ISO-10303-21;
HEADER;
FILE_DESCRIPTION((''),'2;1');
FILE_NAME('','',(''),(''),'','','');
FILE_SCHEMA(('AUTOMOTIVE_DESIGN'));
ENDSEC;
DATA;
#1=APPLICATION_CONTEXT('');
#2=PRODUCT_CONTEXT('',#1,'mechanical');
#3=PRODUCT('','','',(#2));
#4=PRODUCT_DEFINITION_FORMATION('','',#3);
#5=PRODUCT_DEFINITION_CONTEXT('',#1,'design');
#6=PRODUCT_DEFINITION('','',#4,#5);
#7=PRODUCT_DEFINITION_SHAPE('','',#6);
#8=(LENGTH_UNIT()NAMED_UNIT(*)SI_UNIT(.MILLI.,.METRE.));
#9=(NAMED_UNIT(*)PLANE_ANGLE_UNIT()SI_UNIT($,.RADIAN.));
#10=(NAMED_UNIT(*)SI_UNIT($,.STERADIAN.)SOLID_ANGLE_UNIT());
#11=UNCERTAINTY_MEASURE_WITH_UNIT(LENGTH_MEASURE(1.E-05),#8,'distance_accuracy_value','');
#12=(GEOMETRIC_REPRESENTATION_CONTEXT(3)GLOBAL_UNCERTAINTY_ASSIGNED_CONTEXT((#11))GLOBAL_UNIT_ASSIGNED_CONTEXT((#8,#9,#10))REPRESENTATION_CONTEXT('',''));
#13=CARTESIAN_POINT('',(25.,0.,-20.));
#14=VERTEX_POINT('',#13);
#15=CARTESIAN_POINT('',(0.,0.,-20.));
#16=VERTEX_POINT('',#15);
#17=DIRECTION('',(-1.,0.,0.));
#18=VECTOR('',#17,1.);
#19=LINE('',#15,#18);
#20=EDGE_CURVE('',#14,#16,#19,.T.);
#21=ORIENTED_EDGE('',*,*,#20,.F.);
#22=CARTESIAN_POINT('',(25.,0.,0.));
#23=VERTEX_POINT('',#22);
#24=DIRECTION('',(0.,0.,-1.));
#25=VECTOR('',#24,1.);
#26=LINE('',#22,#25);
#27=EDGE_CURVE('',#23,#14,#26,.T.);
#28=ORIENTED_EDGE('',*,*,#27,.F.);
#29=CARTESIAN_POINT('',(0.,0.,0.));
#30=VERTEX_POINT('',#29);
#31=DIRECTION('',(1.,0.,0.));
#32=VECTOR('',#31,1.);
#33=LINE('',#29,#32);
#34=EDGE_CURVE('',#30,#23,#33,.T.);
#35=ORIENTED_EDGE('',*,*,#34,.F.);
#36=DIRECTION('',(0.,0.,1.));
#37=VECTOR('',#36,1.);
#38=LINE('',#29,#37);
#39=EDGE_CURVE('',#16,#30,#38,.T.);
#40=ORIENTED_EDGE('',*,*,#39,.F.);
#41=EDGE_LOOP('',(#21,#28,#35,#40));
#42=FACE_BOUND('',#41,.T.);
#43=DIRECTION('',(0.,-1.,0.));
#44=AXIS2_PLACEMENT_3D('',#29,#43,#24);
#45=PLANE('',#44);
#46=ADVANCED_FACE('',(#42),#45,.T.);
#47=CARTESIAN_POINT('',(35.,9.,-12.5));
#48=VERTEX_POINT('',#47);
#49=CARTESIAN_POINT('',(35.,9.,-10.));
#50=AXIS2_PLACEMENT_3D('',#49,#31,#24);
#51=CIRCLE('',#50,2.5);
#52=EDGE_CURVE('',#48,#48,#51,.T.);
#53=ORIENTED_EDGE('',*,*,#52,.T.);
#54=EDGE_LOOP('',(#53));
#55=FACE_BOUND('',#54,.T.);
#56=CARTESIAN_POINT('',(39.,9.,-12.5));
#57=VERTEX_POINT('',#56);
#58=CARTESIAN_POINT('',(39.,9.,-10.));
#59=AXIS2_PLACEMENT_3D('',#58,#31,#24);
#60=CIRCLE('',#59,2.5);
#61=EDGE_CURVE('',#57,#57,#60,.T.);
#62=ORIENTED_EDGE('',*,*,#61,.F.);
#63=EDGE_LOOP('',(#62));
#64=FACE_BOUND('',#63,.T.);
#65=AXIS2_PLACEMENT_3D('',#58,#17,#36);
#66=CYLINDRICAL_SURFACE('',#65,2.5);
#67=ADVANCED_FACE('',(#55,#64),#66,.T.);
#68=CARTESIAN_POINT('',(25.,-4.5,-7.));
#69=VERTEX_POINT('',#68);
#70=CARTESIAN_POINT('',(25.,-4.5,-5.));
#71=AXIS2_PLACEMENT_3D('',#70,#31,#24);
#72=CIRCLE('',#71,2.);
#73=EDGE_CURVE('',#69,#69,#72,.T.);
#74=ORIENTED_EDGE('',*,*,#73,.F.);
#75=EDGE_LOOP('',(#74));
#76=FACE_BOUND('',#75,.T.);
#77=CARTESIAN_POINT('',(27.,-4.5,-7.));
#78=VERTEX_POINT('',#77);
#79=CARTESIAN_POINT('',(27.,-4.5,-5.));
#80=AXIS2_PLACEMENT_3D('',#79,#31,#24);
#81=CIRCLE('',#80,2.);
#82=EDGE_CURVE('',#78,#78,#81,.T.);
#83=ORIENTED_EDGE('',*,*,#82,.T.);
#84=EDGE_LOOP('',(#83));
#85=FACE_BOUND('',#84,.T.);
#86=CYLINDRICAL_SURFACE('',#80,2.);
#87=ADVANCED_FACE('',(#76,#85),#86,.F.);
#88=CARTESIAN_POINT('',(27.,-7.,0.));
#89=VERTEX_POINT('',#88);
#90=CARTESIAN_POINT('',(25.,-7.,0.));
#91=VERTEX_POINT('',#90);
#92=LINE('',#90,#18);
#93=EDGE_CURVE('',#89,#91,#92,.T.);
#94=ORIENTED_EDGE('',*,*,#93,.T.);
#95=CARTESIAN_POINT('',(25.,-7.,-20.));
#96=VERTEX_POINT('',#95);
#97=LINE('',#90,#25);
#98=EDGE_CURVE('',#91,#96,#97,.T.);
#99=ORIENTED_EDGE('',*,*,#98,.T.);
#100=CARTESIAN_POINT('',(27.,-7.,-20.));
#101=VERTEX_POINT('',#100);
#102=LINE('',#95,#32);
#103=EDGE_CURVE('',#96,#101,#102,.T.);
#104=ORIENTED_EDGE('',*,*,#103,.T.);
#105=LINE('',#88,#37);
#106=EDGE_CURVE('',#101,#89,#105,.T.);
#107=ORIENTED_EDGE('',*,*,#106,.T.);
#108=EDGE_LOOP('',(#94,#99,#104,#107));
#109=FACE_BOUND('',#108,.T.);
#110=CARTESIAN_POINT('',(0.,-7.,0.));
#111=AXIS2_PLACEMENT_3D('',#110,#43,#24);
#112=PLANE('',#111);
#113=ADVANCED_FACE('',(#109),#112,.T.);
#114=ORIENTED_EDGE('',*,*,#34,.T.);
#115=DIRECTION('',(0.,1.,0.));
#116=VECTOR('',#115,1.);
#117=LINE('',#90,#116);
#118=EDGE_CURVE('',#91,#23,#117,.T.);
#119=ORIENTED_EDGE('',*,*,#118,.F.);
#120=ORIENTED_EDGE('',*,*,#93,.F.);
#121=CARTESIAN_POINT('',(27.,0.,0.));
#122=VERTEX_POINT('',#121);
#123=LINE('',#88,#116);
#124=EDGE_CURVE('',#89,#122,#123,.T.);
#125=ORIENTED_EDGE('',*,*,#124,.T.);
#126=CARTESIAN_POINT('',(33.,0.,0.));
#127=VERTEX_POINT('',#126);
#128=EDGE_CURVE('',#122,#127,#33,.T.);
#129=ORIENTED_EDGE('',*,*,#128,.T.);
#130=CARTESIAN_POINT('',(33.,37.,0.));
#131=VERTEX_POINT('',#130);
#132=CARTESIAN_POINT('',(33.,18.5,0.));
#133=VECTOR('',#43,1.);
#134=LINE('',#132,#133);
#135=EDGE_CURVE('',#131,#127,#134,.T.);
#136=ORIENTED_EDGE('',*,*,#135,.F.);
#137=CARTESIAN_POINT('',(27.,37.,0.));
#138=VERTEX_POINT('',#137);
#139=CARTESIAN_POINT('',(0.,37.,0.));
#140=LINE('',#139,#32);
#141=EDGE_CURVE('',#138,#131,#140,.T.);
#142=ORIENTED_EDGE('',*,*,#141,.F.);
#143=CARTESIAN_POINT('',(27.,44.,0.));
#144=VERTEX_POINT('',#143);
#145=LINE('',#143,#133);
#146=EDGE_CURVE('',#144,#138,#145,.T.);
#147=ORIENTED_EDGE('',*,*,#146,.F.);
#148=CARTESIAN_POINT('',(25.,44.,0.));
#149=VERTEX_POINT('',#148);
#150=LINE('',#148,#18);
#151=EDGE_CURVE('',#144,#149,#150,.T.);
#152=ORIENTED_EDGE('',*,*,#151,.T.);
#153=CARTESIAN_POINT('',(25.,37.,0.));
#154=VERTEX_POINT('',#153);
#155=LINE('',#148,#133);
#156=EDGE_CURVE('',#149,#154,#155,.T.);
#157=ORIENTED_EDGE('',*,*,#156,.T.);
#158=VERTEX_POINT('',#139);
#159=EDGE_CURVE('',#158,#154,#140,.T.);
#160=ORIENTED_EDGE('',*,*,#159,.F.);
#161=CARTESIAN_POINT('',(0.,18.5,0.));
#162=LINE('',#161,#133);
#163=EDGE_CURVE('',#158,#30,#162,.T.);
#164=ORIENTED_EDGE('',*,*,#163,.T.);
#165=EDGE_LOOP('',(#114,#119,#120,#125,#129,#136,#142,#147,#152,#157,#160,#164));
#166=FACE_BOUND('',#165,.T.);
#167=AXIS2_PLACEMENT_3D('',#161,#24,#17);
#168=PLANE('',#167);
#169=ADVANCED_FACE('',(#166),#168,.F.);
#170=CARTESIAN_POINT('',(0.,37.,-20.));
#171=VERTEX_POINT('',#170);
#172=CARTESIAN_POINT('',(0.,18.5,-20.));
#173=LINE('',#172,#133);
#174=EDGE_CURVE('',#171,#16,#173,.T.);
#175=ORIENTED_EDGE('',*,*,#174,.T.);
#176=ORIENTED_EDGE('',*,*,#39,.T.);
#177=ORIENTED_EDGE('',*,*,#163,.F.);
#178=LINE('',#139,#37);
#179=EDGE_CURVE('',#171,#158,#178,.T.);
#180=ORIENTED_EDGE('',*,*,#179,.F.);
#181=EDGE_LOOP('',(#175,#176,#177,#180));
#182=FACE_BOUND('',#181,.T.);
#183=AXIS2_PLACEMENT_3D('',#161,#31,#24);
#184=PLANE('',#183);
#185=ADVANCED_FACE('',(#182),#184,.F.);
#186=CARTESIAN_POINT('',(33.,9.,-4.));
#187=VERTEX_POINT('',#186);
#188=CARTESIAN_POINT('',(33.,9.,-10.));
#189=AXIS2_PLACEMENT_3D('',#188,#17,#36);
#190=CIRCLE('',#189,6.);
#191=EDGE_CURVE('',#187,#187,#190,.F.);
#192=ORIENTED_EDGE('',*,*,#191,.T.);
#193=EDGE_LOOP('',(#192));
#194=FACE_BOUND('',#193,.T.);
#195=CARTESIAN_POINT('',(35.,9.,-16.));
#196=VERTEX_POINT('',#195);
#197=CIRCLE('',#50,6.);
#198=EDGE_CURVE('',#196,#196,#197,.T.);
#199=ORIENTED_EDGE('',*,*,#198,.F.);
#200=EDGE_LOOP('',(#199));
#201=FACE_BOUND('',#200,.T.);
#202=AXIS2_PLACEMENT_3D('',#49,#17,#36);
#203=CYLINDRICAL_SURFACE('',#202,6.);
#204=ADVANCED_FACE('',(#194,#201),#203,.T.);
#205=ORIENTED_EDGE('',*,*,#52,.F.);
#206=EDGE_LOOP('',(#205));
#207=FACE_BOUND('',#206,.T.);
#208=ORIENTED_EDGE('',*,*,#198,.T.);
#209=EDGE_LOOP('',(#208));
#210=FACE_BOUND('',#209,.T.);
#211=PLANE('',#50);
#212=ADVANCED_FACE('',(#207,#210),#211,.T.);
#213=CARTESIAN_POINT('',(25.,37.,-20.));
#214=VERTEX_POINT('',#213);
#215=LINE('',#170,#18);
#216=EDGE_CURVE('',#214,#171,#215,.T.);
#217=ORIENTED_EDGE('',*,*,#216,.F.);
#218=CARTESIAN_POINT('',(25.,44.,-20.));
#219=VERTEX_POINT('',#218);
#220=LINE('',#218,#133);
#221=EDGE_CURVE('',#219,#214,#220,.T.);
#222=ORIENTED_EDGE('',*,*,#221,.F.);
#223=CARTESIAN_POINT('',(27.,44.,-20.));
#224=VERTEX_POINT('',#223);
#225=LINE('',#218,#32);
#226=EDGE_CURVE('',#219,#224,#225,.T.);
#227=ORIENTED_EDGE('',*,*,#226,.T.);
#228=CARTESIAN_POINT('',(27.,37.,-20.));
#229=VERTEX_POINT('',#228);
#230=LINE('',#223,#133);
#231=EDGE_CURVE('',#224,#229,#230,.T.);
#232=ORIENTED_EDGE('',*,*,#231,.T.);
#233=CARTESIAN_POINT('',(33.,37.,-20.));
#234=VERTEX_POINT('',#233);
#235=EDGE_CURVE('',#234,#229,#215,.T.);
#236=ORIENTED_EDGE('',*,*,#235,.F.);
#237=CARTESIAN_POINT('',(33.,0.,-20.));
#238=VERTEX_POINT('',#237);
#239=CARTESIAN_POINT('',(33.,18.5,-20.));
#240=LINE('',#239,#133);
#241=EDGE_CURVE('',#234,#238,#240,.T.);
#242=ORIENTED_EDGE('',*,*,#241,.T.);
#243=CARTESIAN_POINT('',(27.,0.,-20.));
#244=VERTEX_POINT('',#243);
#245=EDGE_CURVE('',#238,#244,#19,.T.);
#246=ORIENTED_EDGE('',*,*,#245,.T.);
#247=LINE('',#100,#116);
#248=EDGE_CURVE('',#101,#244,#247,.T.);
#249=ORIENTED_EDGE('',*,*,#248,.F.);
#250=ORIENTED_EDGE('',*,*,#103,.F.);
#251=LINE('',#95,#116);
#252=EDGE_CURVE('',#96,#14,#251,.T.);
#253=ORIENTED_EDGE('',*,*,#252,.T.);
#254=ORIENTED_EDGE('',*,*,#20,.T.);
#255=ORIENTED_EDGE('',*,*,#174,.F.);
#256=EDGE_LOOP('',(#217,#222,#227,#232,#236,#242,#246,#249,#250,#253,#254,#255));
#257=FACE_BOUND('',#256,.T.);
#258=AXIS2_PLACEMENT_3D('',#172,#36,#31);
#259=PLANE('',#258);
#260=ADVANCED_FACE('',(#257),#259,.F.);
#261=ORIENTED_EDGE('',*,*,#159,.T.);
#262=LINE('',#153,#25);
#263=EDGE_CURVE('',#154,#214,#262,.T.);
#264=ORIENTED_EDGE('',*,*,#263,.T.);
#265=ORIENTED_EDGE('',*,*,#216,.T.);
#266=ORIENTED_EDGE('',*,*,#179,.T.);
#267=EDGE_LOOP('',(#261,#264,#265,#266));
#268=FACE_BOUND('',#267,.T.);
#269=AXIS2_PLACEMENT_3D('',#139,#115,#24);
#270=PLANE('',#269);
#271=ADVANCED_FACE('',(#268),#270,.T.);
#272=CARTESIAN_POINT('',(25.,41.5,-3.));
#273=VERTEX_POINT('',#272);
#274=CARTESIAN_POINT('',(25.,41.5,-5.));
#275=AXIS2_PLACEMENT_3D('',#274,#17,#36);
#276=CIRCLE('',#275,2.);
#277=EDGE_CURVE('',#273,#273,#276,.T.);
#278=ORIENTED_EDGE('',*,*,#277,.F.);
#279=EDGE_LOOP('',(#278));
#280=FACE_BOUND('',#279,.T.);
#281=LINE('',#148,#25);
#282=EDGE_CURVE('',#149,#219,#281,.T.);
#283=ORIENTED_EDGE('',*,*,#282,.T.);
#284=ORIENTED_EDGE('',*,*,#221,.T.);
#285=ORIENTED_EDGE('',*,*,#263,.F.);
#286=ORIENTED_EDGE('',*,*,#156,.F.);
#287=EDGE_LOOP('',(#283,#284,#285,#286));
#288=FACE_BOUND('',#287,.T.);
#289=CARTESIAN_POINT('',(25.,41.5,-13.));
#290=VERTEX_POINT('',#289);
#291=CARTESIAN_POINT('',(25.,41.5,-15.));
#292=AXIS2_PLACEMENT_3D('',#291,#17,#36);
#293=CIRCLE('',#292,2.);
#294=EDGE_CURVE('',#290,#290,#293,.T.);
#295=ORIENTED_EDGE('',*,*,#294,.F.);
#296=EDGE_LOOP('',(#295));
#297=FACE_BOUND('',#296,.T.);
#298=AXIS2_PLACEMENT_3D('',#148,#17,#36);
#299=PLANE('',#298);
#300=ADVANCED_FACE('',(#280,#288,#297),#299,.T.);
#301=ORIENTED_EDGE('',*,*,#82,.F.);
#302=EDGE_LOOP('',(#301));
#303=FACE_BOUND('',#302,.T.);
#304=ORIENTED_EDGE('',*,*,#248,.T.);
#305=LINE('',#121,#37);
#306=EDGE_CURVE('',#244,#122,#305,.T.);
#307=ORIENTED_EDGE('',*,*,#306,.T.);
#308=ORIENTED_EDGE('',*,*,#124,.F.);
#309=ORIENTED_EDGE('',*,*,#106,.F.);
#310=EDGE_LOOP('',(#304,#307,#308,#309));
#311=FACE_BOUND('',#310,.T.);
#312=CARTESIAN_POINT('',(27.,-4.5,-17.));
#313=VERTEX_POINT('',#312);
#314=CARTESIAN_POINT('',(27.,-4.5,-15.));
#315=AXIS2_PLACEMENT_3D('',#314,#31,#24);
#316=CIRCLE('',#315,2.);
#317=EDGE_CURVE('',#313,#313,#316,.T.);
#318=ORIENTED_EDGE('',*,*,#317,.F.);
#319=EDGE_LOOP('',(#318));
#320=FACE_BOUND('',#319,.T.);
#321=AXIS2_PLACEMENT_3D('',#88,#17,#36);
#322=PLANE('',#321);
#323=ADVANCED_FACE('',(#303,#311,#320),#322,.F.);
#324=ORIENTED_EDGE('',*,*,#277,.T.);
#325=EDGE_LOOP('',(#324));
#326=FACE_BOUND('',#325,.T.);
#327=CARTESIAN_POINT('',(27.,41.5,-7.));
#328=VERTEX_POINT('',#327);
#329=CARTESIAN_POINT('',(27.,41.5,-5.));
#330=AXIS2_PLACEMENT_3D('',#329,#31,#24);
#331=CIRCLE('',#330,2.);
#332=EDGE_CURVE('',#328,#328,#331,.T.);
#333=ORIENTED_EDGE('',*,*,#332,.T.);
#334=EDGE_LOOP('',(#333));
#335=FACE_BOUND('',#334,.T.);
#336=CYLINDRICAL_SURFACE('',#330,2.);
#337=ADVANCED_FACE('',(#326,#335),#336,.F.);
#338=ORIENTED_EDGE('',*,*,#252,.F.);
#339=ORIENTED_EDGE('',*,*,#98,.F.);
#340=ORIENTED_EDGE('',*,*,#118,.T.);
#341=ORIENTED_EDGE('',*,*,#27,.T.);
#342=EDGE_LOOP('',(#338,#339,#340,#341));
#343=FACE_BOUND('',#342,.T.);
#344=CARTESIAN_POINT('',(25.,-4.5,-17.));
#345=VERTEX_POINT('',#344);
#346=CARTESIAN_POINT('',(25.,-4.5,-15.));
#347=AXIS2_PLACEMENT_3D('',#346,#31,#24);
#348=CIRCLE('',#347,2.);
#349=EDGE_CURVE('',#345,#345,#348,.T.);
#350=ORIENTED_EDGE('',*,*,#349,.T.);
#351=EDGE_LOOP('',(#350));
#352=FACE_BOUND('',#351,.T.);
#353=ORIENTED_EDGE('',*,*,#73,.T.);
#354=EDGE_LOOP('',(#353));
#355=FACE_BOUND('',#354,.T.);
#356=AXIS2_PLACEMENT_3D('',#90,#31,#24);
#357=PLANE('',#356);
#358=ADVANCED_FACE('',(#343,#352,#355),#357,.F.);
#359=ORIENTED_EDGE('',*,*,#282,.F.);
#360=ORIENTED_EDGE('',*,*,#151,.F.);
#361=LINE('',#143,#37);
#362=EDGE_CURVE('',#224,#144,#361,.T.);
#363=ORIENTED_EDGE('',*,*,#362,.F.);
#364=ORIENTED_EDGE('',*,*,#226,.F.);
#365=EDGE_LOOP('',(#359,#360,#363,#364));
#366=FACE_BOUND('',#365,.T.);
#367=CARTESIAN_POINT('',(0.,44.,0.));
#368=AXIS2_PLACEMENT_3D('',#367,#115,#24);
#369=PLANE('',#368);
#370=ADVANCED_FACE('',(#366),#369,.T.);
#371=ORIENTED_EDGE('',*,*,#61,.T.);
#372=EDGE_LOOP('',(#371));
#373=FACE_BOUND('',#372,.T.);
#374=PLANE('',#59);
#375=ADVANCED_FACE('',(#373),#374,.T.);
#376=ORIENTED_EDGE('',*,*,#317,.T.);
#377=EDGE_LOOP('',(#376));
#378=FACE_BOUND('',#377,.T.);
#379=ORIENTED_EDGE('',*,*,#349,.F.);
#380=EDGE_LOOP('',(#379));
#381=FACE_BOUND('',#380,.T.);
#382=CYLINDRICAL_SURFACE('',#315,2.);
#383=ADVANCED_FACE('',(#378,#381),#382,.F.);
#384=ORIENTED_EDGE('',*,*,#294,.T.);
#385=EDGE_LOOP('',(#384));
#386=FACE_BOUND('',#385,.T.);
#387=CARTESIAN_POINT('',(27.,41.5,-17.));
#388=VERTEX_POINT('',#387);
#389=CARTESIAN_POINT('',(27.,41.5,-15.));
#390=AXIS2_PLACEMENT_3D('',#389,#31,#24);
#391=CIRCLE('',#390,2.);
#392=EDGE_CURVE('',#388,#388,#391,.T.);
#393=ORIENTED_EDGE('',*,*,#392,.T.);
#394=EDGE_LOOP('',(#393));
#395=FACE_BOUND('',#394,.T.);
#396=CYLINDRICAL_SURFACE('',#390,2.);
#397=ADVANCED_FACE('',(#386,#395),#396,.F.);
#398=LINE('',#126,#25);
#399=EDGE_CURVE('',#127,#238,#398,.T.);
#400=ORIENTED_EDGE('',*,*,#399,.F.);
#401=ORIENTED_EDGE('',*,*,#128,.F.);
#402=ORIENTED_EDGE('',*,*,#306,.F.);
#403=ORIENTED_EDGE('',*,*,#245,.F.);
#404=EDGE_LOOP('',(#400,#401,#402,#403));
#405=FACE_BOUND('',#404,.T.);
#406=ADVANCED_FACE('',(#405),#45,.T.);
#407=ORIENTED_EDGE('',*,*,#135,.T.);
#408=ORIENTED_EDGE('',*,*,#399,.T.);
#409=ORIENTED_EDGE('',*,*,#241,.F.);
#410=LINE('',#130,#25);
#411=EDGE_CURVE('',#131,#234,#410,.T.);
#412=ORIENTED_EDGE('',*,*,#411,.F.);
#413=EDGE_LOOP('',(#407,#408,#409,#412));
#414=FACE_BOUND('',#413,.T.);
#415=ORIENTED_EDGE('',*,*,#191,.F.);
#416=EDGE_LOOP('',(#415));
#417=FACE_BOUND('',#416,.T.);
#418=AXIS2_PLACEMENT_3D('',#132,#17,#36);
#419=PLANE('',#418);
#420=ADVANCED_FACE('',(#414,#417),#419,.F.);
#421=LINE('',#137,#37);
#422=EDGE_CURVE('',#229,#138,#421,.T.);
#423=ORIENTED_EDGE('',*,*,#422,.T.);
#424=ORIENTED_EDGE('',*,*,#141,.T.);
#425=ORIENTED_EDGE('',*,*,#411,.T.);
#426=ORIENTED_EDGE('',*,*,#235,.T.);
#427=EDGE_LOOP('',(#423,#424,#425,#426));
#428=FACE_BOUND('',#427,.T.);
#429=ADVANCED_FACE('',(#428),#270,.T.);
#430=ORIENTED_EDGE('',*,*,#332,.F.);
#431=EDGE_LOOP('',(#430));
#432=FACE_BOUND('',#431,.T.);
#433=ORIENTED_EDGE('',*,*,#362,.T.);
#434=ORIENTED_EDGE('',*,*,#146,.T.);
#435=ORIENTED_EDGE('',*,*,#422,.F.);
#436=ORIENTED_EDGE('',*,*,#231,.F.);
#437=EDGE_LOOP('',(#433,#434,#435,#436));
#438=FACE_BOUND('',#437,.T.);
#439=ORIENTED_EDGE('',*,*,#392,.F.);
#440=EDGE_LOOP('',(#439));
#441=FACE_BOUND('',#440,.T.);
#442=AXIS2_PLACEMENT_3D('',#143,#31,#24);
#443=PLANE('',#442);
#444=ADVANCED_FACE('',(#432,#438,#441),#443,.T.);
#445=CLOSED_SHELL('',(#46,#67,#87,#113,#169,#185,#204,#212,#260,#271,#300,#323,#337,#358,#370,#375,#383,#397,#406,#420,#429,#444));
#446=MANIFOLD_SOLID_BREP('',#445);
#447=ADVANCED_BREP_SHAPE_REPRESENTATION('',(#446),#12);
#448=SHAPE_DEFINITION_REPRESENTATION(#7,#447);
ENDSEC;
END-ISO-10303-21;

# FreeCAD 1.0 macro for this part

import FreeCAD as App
import Part
import Sketcher
Q = App.Units.Quantity


def add_polygon(sketch, points):
    """Adds a closed chain of lines whose ends are joined by coincident constraints."""
    first, n = sketch.GeometryCount, len(points)
    for a, b in zip(points, points[1:] + points[:1]):
        sketch.addGeometry(Part.LineSegment(App.Vector(*a, 0), App.Vector(*b, 0)), False)
    for i in range(n):
        sketch.addConstraint(Sketcher.Constraint("Coincident", first + i, 2, first + (i + 1) % n, 1))

doc = App.newDocument("Part")
body = doc.addObject("PartDesign::Body", "Body")

sketch1 = doc.addObject("Sketcher::SketchObject", "Sketch")
body.addObject(sketch1)
sketch1.AttachmentSupport = (doc.XZ_Plane, [""])
sketch1.MapMode = "FlatFace"
add_polygon(sketch1, [(0, -20), (0, 0), (33, 0), (33, -20)])
sketch1.addConstraint(Sketcher.Constraint("Vertical", 0))
sketch1.addConstraint(Sketcher.Constraint("Horizontal", 1))
sketch1.addConstraint(Sketcher.Constraint("Vertical", 2))
sketch1.addConstraint(Sketcher.Constraint("Horizontal", 3))
sketch1.addConstraint(Sketcher.Constraint("Coincident", 0, 2, -1, 1))
sketch1.addConstraint(Sketcher.Constraint("DistanceX", 1, 1, 1, 2, Q("33 mm")))
sketch1.addConstraint(Sketcher.Constraint("DistanceY", 0, 1, 0, 2, Q("20 mm")))
pad1 = doc.addObject("PartDesign::Pad", "Pad")
body.addObject(pad1)
pad1.Profile = sketch1
pad1.Length = 18.5
pad1.Reversed = True

sketch2 = doc.addObject("Sketcher::SketchObject", "Sketch001")
body.addObject(sketch2)
sketch2.AttachmentSupport = (doc.XZ_Plane, [""])
sketch2.MapMode = "FlatFace"
add_polygon(sketch2, [(25, 0), (25, -20), (27, -20), (27, 0)])
sketch2.addConstraint(Sketcher.Constraint("Vertical", 0))
sketch2.addConstraint(Sketcher.Constraint("Horizontal", 1))
sketch2.addConstraint(Sketcher.Constraint("Vertical", 2))
sketch2.addConstraint(Sketcher.Constraint("Horizontal", 3))
sketch2.addConstraint(Sketcher.Constraint("PointOnObject", 2, 2, -1))
sketch2.addConstraint(Sketcher.Constraint("DistanceX", 1, 1, 1, 2, Q("2 mm")))
sketch2.addConstraint(Sketcher.Constraint("DistanceY", 0, 2, 0, 1, Q("20 mm")))
sketch2.addConstraint(Sketcher.Constraint("DistanceX", -1, 1, 0, 2, Q("25 mm")))
pad2 = doc.addObject("PartDesign::Pad", "Pad001")
body.addObject(pad2)
pad2.Profile = sketch2
pad2.Length = 7
doc.recompute()

datumplane = doc.addObject("PartDesign::Plane", "DatumPlane")
body.addObject(datumplane)
datumplane.AttachmentSupport = (doc.XZ_Plane, [""])
datumplane.MapMode = "FlatFace"
datumplane.AttachmentOffset = App.Placement(App.Vector(0, 0, -18.5), App.Rotation())
mirrored = doc.addObject("PartDesign::Mirrored", "Mirrored")
body.addObject(mirrored)
mirrored.Originals = [pad1, pad2]
mirrored.MirrorPlane = (datumplane, [""])
body.Tip = mirrored

sketch3 = doc.addObject("Sketcher::SketchObject", "Sketch002")
body.addObject(sketch3)
sketch3.AttachmentSupport = (doc.YZ_Plane, [""])
sketch3.MapMode = "FlatFace"
sketch3.AttachmentOffset = App.Placement(App.Vector(0, 0, 33), App.Rotation())
sketch3.addGeometry(Part.Circle(App.Vector(9, -10, 0), App.Vector(0, 0, 1), 6), False)
sketch3.addConstraint(Sketcher.Constraint("Diameter", 0, Q("12 mm")))
sketch3.addConstraint(Sketcher.Constraint("DistanceX", -1, 1, 0, 3, Q("9 mm")))
sketch3.addConstraint(Sketcher.Constraint("DistanceY", 0, 3, -1, 1, Q("10 mm")))
pad3 = doc.addObject("PartDesign::Pad", "Pad002")
body.addObject(pad3)
pad3.Profile = sketch3
pad3.Length = 2

sketch4 = doc.addObject("Sketcher::SketchObject", "Sketch003")
body.addObject(sketch4)
sketch4.AttachmentSupport = (doc.YZ_Plane, [""])
sketch4.MapMode = "FlatFace"
sketch4.AttachmentOffset = App.Placement(App.Vector(0, 0, 35), App.Rotation())
sketch4.addGeometry(Part.Circle(App.Vector(9, -10, 0), App.Vector(0, 0, 1), 2.5), False)
sketch4.addConstraint(Sketcher.Constraint("Diameter", 0, Q("5 mm")))
sketch4.addConstraint(Sketcher.Constraint("DistanceX", -1, 1, 0, 3, Q("9 mm")))
sketch4.addConstraint(Sketcher.Constraint("DistanceY", 0, 3, -1, 1, Q("10 mm")))
pad4 = doc.addObject("PartDesign::Pad", "Pad003")
body.addObject(pad4)
pad4.Profile = sketch4
pad4.Length = 4

sketch5 = doc.addObject("Sketcher::SketchObject", "Sketch004")
body.addObject(sketch5)
sketch5.AttachmentSupport = (doc.YZ_Plane, [""])
sketch5.MapMode = "FlatFace"
sketch5.AttachmentOffset = App.Placement(App.Vector(0, 0, 27), App.Rotation())
sketch5.addGeometry(Part.Circle(App.Vector(41.5, -15, 0), App.Vector(0, 0, 1), 2), False)
sketch5.addGeometry(Part.Circle(App.Vector(41.5, -5, 0), App.Vector(0, 0, 1), 2), False)
sketch5.addGeometry(Part.Circle(App.Vector(-4.5, -15, 0), App.Vector(0, 0, 1), 2), False)
sketch5.addGeometry(Part.Circle(App.Vector(-4.5, -5, 0), App.Vector(0, 0, 1), 2), False)
sketch5.addConstraint(Sketcher.Constraint("Equal", 0, 1))
sketch5.addConstraint(Sketcher.Constraint("Equal", 1, 2))
sketch5.addConstraint(Sketcher.Constraint("Equal", 2, 3))
sketch5.addConstraint(Sketcher.Constraint("Horizontal", 0, 3, 2, 3))
sketch5.addConstraint(Sketcher.Constraint("Horizontal", 1, 3, 3, 3))
sketch5.addConstraint(Sketcher.Constraint("Vertical", 0, 3, 1, 3))
sketch5.addConstraint(Sketcher.Constraint("Vertical", 2, 3, 3, 3))
sketch5.addConstraint(Sketcher.Constraint("Diameter", 0, Q("4 mm")))
sketch5.addConstraint(Sketcher.Constraint("DistanceY", 0, 3, -1, 1, Q("15 mm")))
sketch5.addConstraint(Sketcher.Constraint("DistanceY", 1, 3, -1, 1, Q("5 mm")))
sketch5.addConstraint(Sketcher.Constraint("DistanceX", 2, 3, 0, 3, Q("46 mm")))
sketch5.addConstraint(Sketcher.Constraint("DistanceX", -1, 1, 0, 3, Q("41.5 mm")))
doc.recompute()
hole = doc.addObject("PartDesign::Hole", "Hole")
body.addObject(hole)
hole.Profile = sketch5
hole.ThreadType = "None"
hole.Diameter = 4
hole.DepthType = "ThroughAll"

doc.recompute()
